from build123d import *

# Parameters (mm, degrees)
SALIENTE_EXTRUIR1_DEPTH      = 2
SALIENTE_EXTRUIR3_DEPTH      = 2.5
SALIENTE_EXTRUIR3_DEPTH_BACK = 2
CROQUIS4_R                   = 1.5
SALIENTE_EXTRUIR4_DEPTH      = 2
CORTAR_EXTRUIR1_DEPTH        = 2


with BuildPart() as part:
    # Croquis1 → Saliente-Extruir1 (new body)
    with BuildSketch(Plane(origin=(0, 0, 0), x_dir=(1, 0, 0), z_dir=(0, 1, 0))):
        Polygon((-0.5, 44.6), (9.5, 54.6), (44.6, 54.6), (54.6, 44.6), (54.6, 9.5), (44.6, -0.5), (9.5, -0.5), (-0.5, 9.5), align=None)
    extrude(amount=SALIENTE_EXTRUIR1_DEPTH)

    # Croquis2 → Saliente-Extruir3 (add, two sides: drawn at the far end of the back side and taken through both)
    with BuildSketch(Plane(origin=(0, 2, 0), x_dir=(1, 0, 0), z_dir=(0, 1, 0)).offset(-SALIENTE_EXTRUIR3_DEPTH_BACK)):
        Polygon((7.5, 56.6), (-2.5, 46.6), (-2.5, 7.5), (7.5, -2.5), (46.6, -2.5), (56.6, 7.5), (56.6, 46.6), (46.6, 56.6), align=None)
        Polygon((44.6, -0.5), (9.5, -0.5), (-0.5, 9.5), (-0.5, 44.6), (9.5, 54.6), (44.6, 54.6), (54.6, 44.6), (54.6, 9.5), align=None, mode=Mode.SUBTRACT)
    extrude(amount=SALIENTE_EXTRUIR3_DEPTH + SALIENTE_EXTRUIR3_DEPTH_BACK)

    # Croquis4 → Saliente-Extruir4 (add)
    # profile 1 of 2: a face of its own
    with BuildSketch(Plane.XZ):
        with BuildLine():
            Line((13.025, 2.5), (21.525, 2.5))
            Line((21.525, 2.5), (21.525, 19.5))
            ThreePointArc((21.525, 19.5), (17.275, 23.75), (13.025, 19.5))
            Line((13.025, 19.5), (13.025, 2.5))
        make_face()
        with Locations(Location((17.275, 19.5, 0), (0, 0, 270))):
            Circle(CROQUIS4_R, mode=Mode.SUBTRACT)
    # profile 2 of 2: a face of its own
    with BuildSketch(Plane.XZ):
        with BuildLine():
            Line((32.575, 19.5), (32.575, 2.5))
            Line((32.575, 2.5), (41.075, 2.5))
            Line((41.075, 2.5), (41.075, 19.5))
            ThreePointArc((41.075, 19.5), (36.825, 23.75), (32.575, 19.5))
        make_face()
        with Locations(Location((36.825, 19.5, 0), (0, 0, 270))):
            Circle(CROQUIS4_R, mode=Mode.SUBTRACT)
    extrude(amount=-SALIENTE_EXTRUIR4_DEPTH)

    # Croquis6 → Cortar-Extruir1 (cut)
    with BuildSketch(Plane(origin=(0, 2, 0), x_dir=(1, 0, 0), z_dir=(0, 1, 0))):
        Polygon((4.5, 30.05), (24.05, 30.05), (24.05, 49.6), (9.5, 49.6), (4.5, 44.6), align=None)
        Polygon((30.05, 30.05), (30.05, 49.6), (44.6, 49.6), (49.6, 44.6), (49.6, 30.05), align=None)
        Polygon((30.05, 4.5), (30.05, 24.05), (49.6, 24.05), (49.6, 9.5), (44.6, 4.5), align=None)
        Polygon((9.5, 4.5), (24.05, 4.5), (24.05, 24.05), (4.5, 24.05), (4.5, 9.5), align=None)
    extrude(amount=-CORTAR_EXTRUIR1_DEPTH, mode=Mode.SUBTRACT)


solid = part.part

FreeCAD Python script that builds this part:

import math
import FreeCAD as App
import Part
import Sketcher

V = App.Vector


def add_polygon(sketch, points):
    """Adds a closed chain of lines whose ends are joined by coincident constraints."""
    first, n = sketch.GeometryCount, len(points)
    for a, b in zip(points, points[1:] + points[:1]):
        sketch.addGeometry(Part.LineSegment(App.Vector(*a, 0), App.Vector(*b, 0)), False)
    for i in range(n):
        sketch.addConstraint(Sketcher.Constraint("Coincident", first + i, 2, first + (i + 1) % n, 1))

doc = App.newDocument("Part")
body = doc.addObject("PartDesign::Body", "Body")

sketch1 = doc.addObject("Sketcher::SketchObject", "Sketch")
body.addObject(sketch1)
sketch1.AttachmentSupport = (doc.XZ_Plane, [""])
sketch1.MapMode = "FlatFace"
add_polygon(sketch1, [(10, -55), (0, -45), (0, -10), (10, 0), (45, 0), (55, -10), (55, -45), (45, -55)])
sketch1.addConstraint(Sketcher.Constraint("Vertical", 1))
sketch1.addConstraint(Sketcher.Constraint("Horizontal", 3))
sketch1.addConstraint(Sketcher.Constraint("Vertical", 5))
sketch1.addConstraint(Sketcher.Constraint("Horizontal", 7))
sketch1.addConstraint(Sketcher.Constraint("Perpendicular", 0, 2))
sketch1.addConstraint(Sketcher.Constraint("Perpendicular", 2, 4))
sketch1.addConstraint(Sketcher.Constraint("Perpendicular", 4, 6))
sketch1.addConstraint(Sketcher.Constraint("Horizontal", 1, 2, 4, 2))
sketch1.addConstraint(Sketcher.Constraint("Horizontal", 0, 2, 5, 2))
sketch1.addConstraint(Sketcher.Constraint("Vertical", 3, 2, 6, 2))
sketch1.addConstraint(Sketcher.Constraint("Vertical", 2, 2, 7, 2))
sketch1.addConstraint(Sketcher.Constraint("Equal", 7, 1))
sketch1.addConstraint(Sketcher.Constraint("DistanceX", 3, 1, 3, 2, 35.1))
sketch1.addConstraint(Sketcher.Constraint("DistanceX", 1, 2, 2, 2, 10.0))
sketch1.addConstraint(Sketcher.Constraint("DistanceX", 0, 2, -1, 1, 0.5))
sketch1.addConstraint(Sketcher.Constraint("DistanceY", 0, 2, -1, 1, 44.6))
pad1 = doc.addObject("PartDesign::Pad", "Pad")
body.addObject(pad1)
pad1.Profile = sketch1
pad1.Length = 2
pad1.Reversed = True

sketch2 = doc.addObject("Sketcher::SketchObject", "Sketch001")
body.addObject(sketch2)
sketch2.AttachmentSupport = (doc.XZ_Plane, [""])
sketch2.MapMode = "FlatFace"
sketch2.AttachmentOffset = App.Placement(V(0, 0, -2), App.Rotation())
add_polygon(sketch2, [(8, -57), (-2, -47), (-2, -8), (8, 2), (47, 2), (57, -8), (57, -47), (47, -57)])
add_polygon(sketch2, [(55, -10), (45, 0), (10, 0), (0, -10), (0, -45), (10, -55), (45, -55), (55, -45)])
sketch2.addConstraint(Sketcher.Constraint("Vertical", 1))
sketch2.addConstraint(Sketcher.Constraint("Horizontal", 3))
sketch2.addConstraint(Sketcher.Constraint("Vertical", 5))
sketch2.addConstraint(Sketcher.Constraint("Horizontal", 7))
sketch2.addConstraint(Sketcher.Constraint("Horizontal", 9))
sketch2.addConstraint(Sketcher.Constraint("Vertical", 11))
sketch2.addConstraint(Sketcher.Constraint("Horizontal", 13))
sketch2.addConstraint(Sketcher.Constraint("Vertical", 15))
sketch2.addConstraint(Sketcher.Constraint("Perpendicular", 0, 2))
sketch2.addConstraint(Sketcher.Constraint("Perpendicular", 2, 4))
sketch2.addConstraint(Sketcher.Constraint("Perpendicular", 4, 6))
sketch2.addConstraint(Sketcher.Constraint("Perpendicular", 6, 8))
sketch2.addConstraint(Sketcher.Constraint("Perpendicular", 8, 10))
sketch2.addConstraint(Sketcher.Constraint("Perpendicular", 10, 12))
sketch2.addConstraint(Sketcher.Constraint("Perpendicular", 12, 14))
sketch2.addConstraint(Sketcher.Constraint("Horizontal", 1, 2, 4, 2))
sketch2.addConstraint(Sketcher.Constraint("Horizontal", 0, 2, 5, 2))
sketch2.addConstraint(Sketcher.Constraint("Horizontal", 11, 2, 14, 2))
sketch2.addConstraint(Sketcher.Constraint("Horizontal", 10, 2, 15, 2))
sketch2.addConstraint(Sketcher.Constraint("Vertical", 3, 2, 6, 2))
sketch2.addConstraint(Sketcher.Constraint("Vertical", 2, 2, 7, 2))
sketch2.addConstraint(Sketcher.Constraint("Vertical", 9, 2, 12, 2))
sketch2.addConstraint(Sketcher.Constraint("Equal", 7, 1))
sketch2.addConstraint(Sketcher.Constraint("Equal", 13, 11))
sketch2.addConstraint(Sketcher.Constraint("Equal", 6, 8))
sketch2.addConstraint(Sketcher.Constraint("DistanceX", 3, 1, 3, 2, 39.1))
sketch2.addConstraint(Sketcher.Constraint("DistanceX", 9, 2, 9, 1, 35.1))
sketch2.addConstraint(Sketcher.Constraint("DistanceX", 1, 2, 2, 2, 10.0))
sketch2.addConstraint(Sketcher.Constraint("DistanceX", 8, 2, 3, 2, 2.0))
sketch2.addConstraint(Sketcher.Constraint("DistanceY", 8, 2, 3, 2, 2.0))
sketch2.addConstraint(Sketcher.Constraint("DistanceX", 0, 2, -1, 1, 2.5))
sketch2.addConstraint(Sketcher.Constraint("DistanceY", 0, 2, -1, 1, 46.6))
pad2 = doc.addObject("PartDesign::Pad", "Pad001")
body.addObject(pad2)
pad2.Profile = sketch2
pad2.Type = "TwoLengths"
pad2.Length = 2.5
pad2.Length2 = 2
pad2.Reversed = True

sketch3 = doc.addObject("Sketcher::SketchObject", "Sketch002")
body.addObject(sketch3)
sketch3.AttachmentSupport = (doc.XZ_Plane, [""])
sketch3.MapMode = "FlatFace"
sketch3.addGeometry(Part.LineSegment(V(13, 2.5, 0), V(21.5, 2.5, 0)), False)
sketch3.addGeometry(Part.LineSegment(V(21.5, 2.5, 0), V(21.5, 19.5, 0)), False)
sketch3.addGeometry(Part.ArcOfCircle(Part.Circle(V(17.3, 19.5, 0), V(0, 0, 1), 4.2), math.radians(0), math.radians(180)), False)
sketch3.addGeometry(Part.LineSegment(V(13, 19.5, 0), V(13, 2.5, 0)), False)
sketch3.addGeometry(Part.Circle(V(17.3, 19.5, 0), V(0, 0, 1), 1.5), False)
sketch3.addGeometry(Part.LineSegment(V(32.6, 19.5, 0), V(32.6, 2.5, 0)), False)
sketch3.addGeometry(Part.LineSegment(V(32.6, 2.5, 0), V(41.1, 2.5, 0)), False)
sketch3.addGeometry(Part.LineSegment(V(41.1, 2.5, 0), V(41.1, 19.5, 0)), False)
sketch3.addGeometry(Part.ArcOfCircle(Part.Circle(V(36.8, 19.5, 0), V(0, 0, 1), 4.2), math.radians(0), math.radians(180)), False)
sketch3.addGeometry(Part.Circle(V(36.8, 19.5, 0), V(0, 0, 1), 1.5), False)
sketch3.addConstraint(Sketcher.Constraint("Coincident", 0, 2, 1, 1))
sketch3.addConstraint(Sketcher.Constraint("Tangent", 1, 2, 2, 1))
sketch3.addConstraint(Sketcher.Constraint("Tangent", 2, 2, 3, 1))
sketch3.addConstraint(Sketcher.Constraint("Coincident", 3, 2, 0, 1))
sketch3.addConstraint(Sketcher.Constraint("Coincident", 5, 2, 6, 1))
sketch3.addConstraint(Sketcher.Constraint("Coincident", 6, 2, 7, 1))
sketch3.addConstraint(Sketcher.Constraint("Tangent", 7, 2, 8, 1))
sketch3.addConstraint(Sketcher.Constraint("Tangent", 8, 2, 5, 1))
sketch3.addConstraint(Sketcher.Constraint("Horizontal", 0))
sketch3.addConstraint(Sketcher.Constraint("Vertical", 1))
sketch3.addConstraint(Sketcher.Constraint("Vertical", 3))
sketch3.addConstraint(Sketcher.Constraint("Vertical", 5))
sketch3.addConstraint(Sketcher.Constraint("Horizontal", 6))
sketch3.addConstraint(Sketcher.Constraint("Vertical", 7))
sketch3.addConstraint(Sketcher.Constraint("Coincident", 4, 3, 2, 3))
sketch3.addConstraint(Sketcher.Constraint("Coincident", 9, 3, 8, 3))
sketch3.addConstraint(Sketcher.Constraint("Equal", 2, 8))
sketch3.addConstraint(Sketcher.Constraint("Equal", 4, 9))
sketch3.addConstraint(Sketcher.Constraint("Horizontal", 4, 3, 8, 3))
sketch3.addConstraint(Sketcher.Constraint("Horizontal", 3, 2, 5, 2))
sketch3.addConstraint(Sketcher.Constraint("Diameter", 4, 3.0))
sketch3.addConstraint(Sketcher.Constraint("DistanceY", 1, 1, 1, 2, 17.0))
sketch3.addConstraint(Sketcher.Constraint("Radius", 2, 4.25))
sketch3.addConstraint(Sketcher.Constraint("DistanceY", -1, 1, 2, 3, 19.5))
sketch3.addConstraint(Sketcher.Constraint("DistanceX", 0, 2, 8, 3, 15.3))
sketch3.addConstraint(Sketcher.Constraint("DistanceX", -1, 1, 2, 3, 17.275))
pad3 = doc.addObject("PartDesign::Pad", "Pad002")
body.addObject(pad3)
pad3.Profile = sketch3
pad3.Length = 2
pad3.Reversed = True

sketch4 = doc.addObject("Sketcher::SketchObject", "Sketch003")
body.addObject(sketch4)
sketch4.AttachmentSupport = (doc.XZ_Plane, [""])
sketch4.MapMode = "FlatFace"
sketch4.AttachmentOffset = App.Placement(V(0, 0, -2), App.Rotation())
add_polygon(sketch4, [(4, -30), (24, -30), (24, -50), (10, -50), (4, -45)])
add_polygon(sketch4, [(30, -50), (30, -30), (50, -30), (50, -45), (45, -50)])
add_polygon(sketch4, [(30, -24), (30, -4), (45, -4), (50, -10), (50, -24)])
add_polygon(sketch4, [(10, -4), (24, -4), (24, -24), (4, -24), (4, -10)])
sketch4.addConstraint(Sketcher.Constraint("Horizontal", 0))
sketch4.addConstraint(Sketcher.Constraint("Vertical", 1))
sketch4.addConstraint(Sketcher.Constraint("Horizontal", 2))
sketch4.addConstraint(Sketcher.Constraint("Vertical", 4))
sketch4.addConstraint(Sketcher.Constraint("Vertical", 5))
sketch4.addConstraint(Sketcher.Constraint("Horizontal", 6))
sketch4.addConstraint(Sketcher.Constraint("Vertical", 7))
sketch4.addConstraint(Sketcher.Constraint("Horizontal", 9))
sketch4.addConstraint(Sketcher.Constraint("Vertical", 10))
sketch4.addConstraint(Sketcher.Constraint("Horizontal", 11))
sketch4.addConstraint(Sketcher.Constraint("Vertical", 13))
sketch4.addConstraint(Sketcher.Constraint("Horizontal", 14))
sketch4.addConstraint(Sketcher.Constraint("Horizontal", 15))
sketch4.addConstraint(Sketcher.Constraint("Vertical", 16))
sketch4.addConstraint(Sketcher.Constraint("Horizontal", 17))
sketch4.addConstraint(Sketcher.Constraint("Vertical", 18))
sketch4.addConstraint(Sketcher.Constraint("Perpendicular", 3, 8))
sketch4.addConstraint(Sketcher.Constraint("Perpendicular", 8, 12))
sketch4.addConstraint(Sketcher.Constraint("Perpendicular", 12, 19))
sketch4.addConstraint(Sketcher.Constraint("Horizontal", 4, 2, 5, 2))
sketch4.addConstraint(Sketcher.Constraint("Horizontal", 3, 2, 7, 2))
sketch4.addConstraint(Sketcher.Constraint("Horizontal", 2, 2, 8, 2))
sketch4.addConstraint(Sketcher.Constraint("Horizontal", 11, 2, 15, 2))
sketch4.addConstraint(Sketcher.Constraint("Horizontal", 14, 2, 16, 2))
sketch4.addConstraint(Sketcher.Constraint("Horizontal", 12, 2, 18, 2))
sketch4.addConstraint(Sketcher.Constraint("Vertical", 9, 2, 10, 2))
sketch4.addConstraint(Sketcher.Constraint("Vertical", 8, 2, 11, 2))
sketch4.addConstraint(Sketcher.Constraint("Vertical", 7, 2, 12, 2))
sketch4.addConstraint(Sketcher.Constraint("Vertical", 1, 2, 15, 2))
sketch4.addConstraint(Sketcher.Constraint("Vertical", 4, 2, 17, 2))
sketch4.addConstraint(Sketcher.Constraint("Vertical", 2, 2, 19, 2))
sketch4.addConstraint(Sketcher.Constraint("Equal", 0, 6))
sketch4.addConstraint(Sketcher.Constraint("Equal", 17, 1))
sketch4.addConstraint(Sketcher.Constraint("Equal", 5, 10))
sketch4.addConstraint(Sketcher.Constraint("DistanceX", 3, 2, 2, 2, 5.0))
sketch4.addConstraint(Sketcher.Constraint("DistanceX", 0, 2, 5, 2, 6.0))
sketch4.addConstraint(Sketcher.Constraint("DistanceY", 6, 2, 13, 2, 6.0))
sketch4.addConstraint(Sketcher.Constraint("DistanceX", 0, 1, 0, 2, 19.55))
sketch4.addConstraint(Sketcher.Constraint("DistanceY", 1, 2, -1, 1, 49.6))
sketch4.addConstraint(Sketcher.Constraint("DistanceX", -1, 1, 2, 2, 9.5))
pocket1 = doc.addObject("PartDesign::Pocket", "Pocket")
body.addObject(pocket1)
pocket1.Profile = sketch4
pocket1.Length = 2
pocket1.Reversed = True

doc.recompute()
